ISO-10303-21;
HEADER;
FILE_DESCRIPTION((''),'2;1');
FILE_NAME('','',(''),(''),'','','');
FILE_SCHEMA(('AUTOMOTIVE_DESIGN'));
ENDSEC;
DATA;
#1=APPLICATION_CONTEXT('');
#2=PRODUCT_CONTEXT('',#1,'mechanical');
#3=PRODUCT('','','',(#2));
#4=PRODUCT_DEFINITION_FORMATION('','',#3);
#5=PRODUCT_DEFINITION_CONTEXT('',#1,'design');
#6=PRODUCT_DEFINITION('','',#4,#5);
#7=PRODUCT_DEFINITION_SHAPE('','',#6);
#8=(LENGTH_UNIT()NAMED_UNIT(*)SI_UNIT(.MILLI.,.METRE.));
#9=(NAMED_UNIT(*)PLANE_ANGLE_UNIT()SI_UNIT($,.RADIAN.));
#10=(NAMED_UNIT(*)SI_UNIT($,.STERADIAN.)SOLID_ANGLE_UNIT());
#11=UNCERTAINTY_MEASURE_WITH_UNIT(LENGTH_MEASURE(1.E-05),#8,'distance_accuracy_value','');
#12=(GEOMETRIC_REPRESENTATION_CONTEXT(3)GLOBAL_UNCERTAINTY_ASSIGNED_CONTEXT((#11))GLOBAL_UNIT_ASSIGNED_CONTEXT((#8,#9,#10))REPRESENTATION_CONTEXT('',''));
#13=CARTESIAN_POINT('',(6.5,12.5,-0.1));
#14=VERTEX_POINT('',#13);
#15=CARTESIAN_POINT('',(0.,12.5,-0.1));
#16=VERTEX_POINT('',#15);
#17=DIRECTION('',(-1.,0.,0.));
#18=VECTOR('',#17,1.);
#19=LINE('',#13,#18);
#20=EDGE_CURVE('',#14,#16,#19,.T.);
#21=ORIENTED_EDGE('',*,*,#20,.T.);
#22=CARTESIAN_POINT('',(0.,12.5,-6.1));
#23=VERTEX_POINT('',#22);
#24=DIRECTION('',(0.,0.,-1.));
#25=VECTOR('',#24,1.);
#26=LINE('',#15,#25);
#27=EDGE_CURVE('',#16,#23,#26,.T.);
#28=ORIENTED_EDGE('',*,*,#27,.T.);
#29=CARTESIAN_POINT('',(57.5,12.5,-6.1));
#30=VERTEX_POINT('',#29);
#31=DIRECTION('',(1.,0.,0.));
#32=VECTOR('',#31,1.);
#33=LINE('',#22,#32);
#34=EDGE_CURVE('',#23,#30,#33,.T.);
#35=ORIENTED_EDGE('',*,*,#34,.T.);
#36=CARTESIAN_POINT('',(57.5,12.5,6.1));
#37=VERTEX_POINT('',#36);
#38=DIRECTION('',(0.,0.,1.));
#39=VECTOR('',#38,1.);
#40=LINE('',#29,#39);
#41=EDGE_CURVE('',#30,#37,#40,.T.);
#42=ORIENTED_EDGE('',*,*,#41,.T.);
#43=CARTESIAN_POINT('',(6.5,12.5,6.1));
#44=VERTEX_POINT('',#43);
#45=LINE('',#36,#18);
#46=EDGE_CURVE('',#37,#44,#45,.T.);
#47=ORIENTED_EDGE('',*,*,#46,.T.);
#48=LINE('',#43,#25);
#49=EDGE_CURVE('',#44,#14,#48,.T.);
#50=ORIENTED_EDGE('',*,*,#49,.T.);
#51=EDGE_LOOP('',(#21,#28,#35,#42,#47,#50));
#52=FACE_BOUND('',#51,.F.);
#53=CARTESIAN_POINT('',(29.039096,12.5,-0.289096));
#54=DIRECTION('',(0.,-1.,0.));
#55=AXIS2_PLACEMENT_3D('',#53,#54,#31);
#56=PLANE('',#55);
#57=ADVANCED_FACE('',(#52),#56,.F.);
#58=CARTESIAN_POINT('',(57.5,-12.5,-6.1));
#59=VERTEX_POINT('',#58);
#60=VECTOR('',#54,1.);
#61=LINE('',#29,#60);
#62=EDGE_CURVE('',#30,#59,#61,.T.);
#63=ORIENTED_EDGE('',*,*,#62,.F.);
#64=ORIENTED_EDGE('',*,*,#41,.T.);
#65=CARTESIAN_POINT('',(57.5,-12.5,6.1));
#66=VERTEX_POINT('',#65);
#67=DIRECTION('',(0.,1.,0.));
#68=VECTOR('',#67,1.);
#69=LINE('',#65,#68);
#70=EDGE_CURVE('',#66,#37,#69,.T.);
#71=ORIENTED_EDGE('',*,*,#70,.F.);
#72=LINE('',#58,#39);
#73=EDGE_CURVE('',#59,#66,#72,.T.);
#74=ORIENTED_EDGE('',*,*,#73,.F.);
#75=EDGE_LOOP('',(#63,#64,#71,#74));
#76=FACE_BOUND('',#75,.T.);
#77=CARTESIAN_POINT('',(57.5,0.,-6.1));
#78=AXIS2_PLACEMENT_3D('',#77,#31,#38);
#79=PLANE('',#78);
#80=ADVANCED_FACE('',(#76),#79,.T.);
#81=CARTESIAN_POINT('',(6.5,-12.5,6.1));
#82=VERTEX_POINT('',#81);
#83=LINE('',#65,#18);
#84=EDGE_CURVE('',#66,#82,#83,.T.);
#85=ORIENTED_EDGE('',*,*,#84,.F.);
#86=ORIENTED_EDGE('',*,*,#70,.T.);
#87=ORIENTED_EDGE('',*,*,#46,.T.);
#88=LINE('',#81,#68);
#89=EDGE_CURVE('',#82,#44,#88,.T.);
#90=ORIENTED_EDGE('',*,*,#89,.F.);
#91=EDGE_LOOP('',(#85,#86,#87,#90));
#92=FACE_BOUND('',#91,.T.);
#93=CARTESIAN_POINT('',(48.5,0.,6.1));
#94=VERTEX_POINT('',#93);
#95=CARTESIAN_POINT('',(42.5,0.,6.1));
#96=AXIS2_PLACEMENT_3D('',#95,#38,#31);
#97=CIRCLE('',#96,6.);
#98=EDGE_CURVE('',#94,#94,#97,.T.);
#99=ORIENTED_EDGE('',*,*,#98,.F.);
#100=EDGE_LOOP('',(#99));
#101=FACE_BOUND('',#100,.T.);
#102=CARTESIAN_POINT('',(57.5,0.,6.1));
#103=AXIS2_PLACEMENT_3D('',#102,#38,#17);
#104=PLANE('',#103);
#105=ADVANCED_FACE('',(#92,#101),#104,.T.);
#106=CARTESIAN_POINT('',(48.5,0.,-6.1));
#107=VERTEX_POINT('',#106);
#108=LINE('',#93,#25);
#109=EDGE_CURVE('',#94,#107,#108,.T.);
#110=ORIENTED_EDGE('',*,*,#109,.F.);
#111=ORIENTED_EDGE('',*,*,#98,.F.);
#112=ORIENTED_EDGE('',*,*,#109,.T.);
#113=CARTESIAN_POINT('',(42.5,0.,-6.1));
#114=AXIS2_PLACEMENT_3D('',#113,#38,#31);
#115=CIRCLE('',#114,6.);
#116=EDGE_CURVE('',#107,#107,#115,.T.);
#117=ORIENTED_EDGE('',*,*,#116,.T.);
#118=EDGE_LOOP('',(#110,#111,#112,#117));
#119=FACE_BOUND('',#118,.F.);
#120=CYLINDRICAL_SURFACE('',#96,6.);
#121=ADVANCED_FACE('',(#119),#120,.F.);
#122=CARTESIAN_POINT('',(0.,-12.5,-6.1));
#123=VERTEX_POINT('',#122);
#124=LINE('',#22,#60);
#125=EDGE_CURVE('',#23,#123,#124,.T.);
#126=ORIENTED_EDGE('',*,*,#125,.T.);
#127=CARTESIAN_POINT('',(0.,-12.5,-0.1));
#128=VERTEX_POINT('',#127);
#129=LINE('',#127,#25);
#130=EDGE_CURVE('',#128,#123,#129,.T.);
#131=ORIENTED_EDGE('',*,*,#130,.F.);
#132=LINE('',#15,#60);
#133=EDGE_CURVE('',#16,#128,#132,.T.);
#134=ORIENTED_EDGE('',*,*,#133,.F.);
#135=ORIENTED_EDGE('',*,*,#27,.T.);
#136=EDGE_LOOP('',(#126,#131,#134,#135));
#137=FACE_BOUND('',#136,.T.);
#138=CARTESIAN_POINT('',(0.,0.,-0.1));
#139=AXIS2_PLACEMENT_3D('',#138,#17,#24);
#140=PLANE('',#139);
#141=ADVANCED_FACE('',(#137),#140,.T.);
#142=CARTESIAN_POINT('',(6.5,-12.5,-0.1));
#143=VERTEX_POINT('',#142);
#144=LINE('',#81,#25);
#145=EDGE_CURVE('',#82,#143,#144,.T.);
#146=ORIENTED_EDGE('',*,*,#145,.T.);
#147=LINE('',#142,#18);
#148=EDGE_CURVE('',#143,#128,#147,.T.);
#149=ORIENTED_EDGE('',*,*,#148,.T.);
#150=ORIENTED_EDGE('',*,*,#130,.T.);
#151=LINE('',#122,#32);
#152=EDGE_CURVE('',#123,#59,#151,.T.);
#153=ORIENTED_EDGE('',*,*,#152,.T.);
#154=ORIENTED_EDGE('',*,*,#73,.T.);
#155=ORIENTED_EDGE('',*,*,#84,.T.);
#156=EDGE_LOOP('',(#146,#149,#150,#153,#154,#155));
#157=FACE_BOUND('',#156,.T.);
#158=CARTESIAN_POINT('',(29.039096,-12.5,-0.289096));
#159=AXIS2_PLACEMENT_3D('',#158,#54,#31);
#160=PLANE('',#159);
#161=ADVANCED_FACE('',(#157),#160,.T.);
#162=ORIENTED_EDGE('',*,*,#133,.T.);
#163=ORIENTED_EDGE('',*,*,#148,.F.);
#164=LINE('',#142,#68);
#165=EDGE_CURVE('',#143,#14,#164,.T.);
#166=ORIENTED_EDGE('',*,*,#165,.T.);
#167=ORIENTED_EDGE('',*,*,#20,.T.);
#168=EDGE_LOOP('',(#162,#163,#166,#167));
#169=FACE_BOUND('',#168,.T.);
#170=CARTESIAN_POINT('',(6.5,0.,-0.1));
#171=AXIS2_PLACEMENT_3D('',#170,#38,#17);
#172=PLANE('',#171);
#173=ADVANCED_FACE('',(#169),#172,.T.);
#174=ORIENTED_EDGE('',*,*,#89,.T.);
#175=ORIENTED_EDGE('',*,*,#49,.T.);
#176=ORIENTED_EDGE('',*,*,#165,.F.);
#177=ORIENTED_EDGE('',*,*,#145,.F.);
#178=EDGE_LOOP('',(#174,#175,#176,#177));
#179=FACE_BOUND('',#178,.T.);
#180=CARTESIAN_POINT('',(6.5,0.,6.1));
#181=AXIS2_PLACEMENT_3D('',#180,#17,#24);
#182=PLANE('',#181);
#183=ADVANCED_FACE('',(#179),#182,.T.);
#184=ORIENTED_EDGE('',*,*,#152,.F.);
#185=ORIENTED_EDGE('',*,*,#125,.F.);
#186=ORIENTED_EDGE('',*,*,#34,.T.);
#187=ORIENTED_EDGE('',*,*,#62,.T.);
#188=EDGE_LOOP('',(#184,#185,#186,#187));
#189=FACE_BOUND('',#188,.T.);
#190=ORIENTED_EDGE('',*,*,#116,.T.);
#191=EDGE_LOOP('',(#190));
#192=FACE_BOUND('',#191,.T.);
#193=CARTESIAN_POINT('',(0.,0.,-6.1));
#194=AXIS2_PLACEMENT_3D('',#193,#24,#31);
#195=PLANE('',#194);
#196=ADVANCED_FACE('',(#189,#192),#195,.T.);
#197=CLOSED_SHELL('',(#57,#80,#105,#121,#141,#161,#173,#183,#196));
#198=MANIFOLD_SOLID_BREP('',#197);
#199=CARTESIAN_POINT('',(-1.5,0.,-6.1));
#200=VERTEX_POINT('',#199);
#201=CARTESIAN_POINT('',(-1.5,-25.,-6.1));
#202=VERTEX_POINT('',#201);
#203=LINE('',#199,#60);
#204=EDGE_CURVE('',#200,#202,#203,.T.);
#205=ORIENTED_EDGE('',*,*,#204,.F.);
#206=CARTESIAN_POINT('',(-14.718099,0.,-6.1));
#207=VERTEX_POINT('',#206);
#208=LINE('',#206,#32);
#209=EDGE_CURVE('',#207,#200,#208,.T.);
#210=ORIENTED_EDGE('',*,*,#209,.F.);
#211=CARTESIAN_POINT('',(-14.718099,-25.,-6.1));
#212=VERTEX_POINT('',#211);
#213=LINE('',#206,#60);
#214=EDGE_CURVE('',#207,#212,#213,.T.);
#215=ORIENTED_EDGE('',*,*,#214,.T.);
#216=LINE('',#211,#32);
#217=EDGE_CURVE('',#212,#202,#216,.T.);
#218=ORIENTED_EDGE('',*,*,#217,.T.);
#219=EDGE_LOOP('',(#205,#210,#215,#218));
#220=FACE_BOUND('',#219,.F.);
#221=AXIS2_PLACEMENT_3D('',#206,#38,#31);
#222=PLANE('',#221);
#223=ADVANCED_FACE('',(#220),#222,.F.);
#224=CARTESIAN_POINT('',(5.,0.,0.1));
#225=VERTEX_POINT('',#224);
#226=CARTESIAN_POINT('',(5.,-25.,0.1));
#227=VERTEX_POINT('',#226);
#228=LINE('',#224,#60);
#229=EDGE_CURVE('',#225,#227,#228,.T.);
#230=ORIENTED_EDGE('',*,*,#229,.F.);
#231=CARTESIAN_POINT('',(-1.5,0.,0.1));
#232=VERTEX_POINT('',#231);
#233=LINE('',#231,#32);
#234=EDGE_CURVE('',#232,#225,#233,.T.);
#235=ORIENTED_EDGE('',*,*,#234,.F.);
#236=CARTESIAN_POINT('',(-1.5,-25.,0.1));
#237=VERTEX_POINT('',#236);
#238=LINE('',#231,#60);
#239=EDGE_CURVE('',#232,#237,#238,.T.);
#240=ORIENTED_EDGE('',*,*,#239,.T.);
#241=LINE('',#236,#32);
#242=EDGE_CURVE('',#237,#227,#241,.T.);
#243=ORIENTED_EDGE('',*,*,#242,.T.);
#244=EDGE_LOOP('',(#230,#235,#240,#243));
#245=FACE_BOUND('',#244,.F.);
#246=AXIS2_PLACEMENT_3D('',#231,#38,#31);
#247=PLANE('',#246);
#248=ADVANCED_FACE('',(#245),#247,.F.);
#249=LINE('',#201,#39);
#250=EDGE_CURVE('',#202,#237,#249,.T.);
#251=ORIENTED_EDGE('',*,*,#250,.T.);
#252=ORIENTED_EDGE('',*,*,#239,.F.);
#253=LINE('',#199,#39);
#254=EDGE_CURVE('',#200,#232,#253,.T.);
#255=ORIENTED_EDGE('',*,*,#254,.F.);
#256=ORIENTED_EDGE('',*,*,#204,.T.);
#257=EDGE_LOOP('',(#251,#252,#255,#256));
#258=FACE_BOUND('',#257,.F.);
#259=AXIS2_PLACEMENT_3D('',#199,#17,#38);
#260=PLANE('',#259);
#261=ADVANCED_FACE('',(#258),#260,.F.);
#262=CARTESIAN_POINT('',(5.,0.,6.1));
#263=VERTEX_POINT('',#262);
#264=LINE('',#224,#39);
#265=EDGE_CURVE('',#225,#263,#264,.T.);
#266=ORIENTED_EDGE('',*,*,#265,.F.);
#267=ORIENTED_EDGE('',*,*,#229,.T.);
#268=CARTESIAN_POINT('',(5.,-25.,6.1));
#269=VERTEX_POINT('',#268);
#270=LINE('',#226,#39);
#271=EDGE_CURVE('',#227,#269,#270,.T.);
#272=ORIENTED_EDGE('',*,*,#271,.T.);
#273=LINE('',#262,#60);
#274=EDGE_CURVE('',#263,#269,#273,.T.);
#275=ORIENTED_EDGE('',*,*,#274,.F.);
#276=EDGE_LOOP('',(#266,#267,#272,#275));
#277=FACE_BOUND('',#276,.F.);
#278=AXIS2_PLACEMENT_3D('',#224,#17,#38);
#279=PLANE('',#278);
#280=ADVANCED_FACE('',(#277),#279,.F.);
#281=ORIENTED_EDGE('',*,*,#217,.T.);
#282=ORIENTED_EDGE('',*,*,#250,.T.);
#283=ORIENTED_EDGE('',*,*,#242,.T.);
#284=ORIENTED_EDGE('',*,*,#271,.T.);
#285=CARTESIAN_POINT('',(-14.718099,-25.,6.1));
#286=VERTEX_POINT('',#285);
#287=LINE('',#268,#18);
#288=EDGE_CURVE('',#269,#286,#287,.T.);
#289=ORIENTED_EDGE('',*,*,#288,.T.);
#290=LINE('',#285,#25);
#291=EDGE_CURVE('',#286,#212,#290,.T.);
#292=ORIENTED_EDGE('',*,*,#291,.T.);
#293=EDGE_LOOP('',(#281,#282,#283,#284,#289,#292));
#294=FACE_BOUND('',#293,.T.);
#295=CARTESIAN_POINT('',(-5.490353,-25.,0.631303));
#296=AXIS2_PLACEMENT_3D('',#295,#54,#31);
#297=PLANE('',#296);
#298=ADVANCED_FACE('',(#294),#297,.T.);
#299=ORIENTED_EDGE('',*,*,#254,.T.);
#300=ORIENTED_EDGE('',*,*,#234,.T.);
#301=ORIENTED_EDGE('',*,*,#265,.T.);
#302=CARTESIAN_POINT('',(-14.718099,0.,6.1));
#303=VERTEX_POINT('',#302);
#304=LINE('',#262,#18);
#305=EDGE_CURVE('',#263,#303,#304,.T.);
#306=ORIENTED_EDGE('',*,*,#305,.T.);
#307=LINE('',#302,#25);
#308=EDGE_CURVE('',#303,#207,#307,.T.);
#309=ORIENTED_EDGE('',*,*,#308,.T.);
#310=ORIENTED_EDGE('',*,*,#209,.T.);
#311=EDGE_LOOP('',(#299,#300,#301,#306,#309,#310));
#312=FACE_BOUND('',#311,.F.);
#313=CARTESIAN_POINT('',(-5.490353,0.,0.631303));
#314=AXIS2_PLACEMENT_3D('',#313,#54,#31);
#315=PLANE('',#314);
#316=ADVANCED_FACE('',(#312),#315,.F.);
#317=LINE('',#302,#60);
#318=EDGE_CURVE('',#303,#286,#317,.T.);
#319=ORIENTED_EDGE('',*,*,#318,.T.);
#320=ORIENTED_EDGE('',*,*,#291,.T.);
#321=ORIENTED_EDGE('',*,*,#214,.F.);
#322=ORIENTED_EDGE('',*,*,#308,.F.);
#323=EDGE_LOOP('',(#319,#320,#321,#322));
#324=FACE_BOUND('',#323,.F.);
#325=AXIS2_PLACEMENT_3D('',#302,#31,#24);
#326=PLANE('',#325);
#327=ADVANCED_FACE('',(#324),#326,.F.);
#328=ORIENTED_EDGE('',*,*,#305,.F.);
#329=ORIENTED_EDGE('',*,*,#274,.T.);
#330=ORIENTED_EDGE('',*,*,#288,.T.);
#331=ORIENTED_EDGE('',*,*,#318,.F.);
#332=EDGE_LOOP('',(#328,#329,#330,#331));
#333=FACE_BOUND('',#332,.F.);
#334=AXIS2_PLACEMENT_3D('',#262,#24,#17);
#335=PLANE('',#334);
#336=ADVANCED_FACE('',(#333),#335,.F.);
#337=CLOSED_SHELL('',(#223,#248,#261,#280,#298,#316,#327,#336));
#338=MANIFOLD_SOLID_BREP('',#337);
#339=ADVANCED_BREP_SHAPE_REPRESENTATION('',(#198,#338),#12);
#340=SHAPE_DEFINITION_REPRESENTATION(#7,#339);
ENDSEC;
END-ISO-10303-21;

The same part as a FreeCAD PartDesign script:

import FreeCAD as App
import Part
import Sketcher
from FreeCAD import Vector


def add_polygon(sketch, points):
    """Adds a closed chain of lines whose ends are joined by coincident constraints."""
    first, n = sketch.GeometryCount, len(points)
    for a, b in zip(points, points[1:] + points[:1]):
        sketch.addGeometry(Part.LineSegment(App.Vector(*a, 0), App.Vector(*b, 0)), False)
    for i in range(n):
        sketch.addConstraint(Sketcher.Constraint("Coincident", first + i, 2, first + (i + 1) % n, 1))

doc = App.newDocument("Part")
body = doc.addObject("PartDesign::Body", "Body")

# Sketch on XZ plane
sketch1 = body.newObject("Sketcher::SketchObject", "Sketch")
sketch1.AttachmentSupport = (doc.getObject("XZ_Plane"), [""])
sketch1.MapMode = "FlatFace"
add_polygon(sketch1, [(6, 0), (0, 0), (0, -6), (58, -6), (58, 6), (6, 6)])  # lines 0-5
sketch1.addConstraint(Sketcher.Constraint("Horizontal", 0))
sketch1.addConstraint(Sketcher.Constraint("Vertical", 1))
sketch1.addConstraint(Sketcher.Constraint("Horizontal", 2))
sketch1.addConstraint(Sketcher.Constraint("Vertical", 3))
sketch1.addConstraint(Sketcher.Constraint("Horizontal", 4))
sketch1.addConstraint(Sketcher.Constraint("Vertical", 5))
sketch1.addConstraint(Sketcher.Constraint("PointOnObject", 0, 2, -2))
sketch1.addConstraint(Sketcher.Constraint("DistanceX", 4, 2, 4, 1, 51.0))
sketch1.addConstraint(Sketcher.Constraint("DistanceY", 1, 2, 1, 1, 6.0))
sketch1.addConstraint(Sketcher.Constraint("DistanceX", 0, 2, 0, 1, 6.5))
sketch1.addConstraint(Sketcher.Constraint("DistanceY", 3, 1, 3, 2, 12.2))
sketch1.addConstraint(Sketcher.Constraint("DistanceY", 0, 2, -1, 1, 0.1))
pad1 = body.newObject("PartDesign::Pad", "Pad")
pad1.Profile = sketch1
pad1.Length = 25
pad1.Midplane = True

# Sketch on XY plane
sketch2 = body.newObject("Sketcher::SketchObject", "Sketch001")
sketch2.AttachmentSupport = (doc.getObject("XY_Plane"), [""])
sketch2.MapMode = "FlatFace"
sketch2.AttachmentOffset = App.Placement(Vector(0, 0, 6.1), App.Rotation())
sketch2.addGeometry(Part.Circle(Vector(42, 0, 0), Vector(0, 0, 1), 6), False)
sketch2.addConstraint(Sketcher.Constraint("PointOnObject", 0, 3, -1))
sketch2.addConstraint(Sketcher.Constraint("Diameter", 0, 12.0))
sketch2.addConstraint(Sketcher.Constraint("DistanceX", -1, 1, 0, 3, 42.5))
pocket1 = body.newObject("PartDesign::Pocket", "Pocket")
pocket1.Profile = sketch2
pocket1.Type = "ThroughAll"
body2 = doc.addObject("PartDesign::Body", "Body001")

# Sketch on XZ plane
sketch3 = body2.newObject("Sketcher::SketchObject", "Sketch002")
sketch3.AttachmentSupport = (doc.getObject("XZ_Plane001"), [""])
sketch3.MapMode = "FlatFace"
add_polygon(sketch3, [(-2, 0), (5, 0), (5, 6), (-15, 6), (-15, -6), (-2, -6)])  # lines 0-5
sketch3.addConstraint(Sketcher.Constraint("Horizontal", 0))
sketch3.addConstraint(Sketcher.Constraint("Vertical", 1))
sketch3.addConstraint(Sketcher.Constraint("Horizontal", 2))
sketch3.addConstraint(Sketcher.Constraint("Vertical", 3))
sketch3.addConstraint(Sketcher.Constraint("Horizontal", 4))
sketch3.addConstraint(Sketcher.Constraint("Vertical", 5))
sketch3.addConstraint(Sketcher.Constraint("DistanceY", 1, 1, 1, 2, 6.0))
sketch3.addConstraint(Sketcher.Constraint("DistanceX", 0, 1, 0, 2, 6.5))
sketch3.addConstraint(Sketcher.Constraint("DistanceY", 3, 2, 3, 1, 12.2))
sketch3.addConstraint(Sketcher.Constraint("DistanceX", -1, 1, 0, 2, 5.0))
sketch3.addConstraint(Sketcher.Constraint("DistanceY", -1, 1, 0, 2, 0.1))
sketch3.addConstraint(Sketcher.Constraint("DistanceX", 2, 2, 2, 1, 19.718099))
pad2 = body2.newObject("PartDesign::Pad", "Pad001")
pad2.Profile = sketch3
pad2.Length = 25

doc.recompute()
